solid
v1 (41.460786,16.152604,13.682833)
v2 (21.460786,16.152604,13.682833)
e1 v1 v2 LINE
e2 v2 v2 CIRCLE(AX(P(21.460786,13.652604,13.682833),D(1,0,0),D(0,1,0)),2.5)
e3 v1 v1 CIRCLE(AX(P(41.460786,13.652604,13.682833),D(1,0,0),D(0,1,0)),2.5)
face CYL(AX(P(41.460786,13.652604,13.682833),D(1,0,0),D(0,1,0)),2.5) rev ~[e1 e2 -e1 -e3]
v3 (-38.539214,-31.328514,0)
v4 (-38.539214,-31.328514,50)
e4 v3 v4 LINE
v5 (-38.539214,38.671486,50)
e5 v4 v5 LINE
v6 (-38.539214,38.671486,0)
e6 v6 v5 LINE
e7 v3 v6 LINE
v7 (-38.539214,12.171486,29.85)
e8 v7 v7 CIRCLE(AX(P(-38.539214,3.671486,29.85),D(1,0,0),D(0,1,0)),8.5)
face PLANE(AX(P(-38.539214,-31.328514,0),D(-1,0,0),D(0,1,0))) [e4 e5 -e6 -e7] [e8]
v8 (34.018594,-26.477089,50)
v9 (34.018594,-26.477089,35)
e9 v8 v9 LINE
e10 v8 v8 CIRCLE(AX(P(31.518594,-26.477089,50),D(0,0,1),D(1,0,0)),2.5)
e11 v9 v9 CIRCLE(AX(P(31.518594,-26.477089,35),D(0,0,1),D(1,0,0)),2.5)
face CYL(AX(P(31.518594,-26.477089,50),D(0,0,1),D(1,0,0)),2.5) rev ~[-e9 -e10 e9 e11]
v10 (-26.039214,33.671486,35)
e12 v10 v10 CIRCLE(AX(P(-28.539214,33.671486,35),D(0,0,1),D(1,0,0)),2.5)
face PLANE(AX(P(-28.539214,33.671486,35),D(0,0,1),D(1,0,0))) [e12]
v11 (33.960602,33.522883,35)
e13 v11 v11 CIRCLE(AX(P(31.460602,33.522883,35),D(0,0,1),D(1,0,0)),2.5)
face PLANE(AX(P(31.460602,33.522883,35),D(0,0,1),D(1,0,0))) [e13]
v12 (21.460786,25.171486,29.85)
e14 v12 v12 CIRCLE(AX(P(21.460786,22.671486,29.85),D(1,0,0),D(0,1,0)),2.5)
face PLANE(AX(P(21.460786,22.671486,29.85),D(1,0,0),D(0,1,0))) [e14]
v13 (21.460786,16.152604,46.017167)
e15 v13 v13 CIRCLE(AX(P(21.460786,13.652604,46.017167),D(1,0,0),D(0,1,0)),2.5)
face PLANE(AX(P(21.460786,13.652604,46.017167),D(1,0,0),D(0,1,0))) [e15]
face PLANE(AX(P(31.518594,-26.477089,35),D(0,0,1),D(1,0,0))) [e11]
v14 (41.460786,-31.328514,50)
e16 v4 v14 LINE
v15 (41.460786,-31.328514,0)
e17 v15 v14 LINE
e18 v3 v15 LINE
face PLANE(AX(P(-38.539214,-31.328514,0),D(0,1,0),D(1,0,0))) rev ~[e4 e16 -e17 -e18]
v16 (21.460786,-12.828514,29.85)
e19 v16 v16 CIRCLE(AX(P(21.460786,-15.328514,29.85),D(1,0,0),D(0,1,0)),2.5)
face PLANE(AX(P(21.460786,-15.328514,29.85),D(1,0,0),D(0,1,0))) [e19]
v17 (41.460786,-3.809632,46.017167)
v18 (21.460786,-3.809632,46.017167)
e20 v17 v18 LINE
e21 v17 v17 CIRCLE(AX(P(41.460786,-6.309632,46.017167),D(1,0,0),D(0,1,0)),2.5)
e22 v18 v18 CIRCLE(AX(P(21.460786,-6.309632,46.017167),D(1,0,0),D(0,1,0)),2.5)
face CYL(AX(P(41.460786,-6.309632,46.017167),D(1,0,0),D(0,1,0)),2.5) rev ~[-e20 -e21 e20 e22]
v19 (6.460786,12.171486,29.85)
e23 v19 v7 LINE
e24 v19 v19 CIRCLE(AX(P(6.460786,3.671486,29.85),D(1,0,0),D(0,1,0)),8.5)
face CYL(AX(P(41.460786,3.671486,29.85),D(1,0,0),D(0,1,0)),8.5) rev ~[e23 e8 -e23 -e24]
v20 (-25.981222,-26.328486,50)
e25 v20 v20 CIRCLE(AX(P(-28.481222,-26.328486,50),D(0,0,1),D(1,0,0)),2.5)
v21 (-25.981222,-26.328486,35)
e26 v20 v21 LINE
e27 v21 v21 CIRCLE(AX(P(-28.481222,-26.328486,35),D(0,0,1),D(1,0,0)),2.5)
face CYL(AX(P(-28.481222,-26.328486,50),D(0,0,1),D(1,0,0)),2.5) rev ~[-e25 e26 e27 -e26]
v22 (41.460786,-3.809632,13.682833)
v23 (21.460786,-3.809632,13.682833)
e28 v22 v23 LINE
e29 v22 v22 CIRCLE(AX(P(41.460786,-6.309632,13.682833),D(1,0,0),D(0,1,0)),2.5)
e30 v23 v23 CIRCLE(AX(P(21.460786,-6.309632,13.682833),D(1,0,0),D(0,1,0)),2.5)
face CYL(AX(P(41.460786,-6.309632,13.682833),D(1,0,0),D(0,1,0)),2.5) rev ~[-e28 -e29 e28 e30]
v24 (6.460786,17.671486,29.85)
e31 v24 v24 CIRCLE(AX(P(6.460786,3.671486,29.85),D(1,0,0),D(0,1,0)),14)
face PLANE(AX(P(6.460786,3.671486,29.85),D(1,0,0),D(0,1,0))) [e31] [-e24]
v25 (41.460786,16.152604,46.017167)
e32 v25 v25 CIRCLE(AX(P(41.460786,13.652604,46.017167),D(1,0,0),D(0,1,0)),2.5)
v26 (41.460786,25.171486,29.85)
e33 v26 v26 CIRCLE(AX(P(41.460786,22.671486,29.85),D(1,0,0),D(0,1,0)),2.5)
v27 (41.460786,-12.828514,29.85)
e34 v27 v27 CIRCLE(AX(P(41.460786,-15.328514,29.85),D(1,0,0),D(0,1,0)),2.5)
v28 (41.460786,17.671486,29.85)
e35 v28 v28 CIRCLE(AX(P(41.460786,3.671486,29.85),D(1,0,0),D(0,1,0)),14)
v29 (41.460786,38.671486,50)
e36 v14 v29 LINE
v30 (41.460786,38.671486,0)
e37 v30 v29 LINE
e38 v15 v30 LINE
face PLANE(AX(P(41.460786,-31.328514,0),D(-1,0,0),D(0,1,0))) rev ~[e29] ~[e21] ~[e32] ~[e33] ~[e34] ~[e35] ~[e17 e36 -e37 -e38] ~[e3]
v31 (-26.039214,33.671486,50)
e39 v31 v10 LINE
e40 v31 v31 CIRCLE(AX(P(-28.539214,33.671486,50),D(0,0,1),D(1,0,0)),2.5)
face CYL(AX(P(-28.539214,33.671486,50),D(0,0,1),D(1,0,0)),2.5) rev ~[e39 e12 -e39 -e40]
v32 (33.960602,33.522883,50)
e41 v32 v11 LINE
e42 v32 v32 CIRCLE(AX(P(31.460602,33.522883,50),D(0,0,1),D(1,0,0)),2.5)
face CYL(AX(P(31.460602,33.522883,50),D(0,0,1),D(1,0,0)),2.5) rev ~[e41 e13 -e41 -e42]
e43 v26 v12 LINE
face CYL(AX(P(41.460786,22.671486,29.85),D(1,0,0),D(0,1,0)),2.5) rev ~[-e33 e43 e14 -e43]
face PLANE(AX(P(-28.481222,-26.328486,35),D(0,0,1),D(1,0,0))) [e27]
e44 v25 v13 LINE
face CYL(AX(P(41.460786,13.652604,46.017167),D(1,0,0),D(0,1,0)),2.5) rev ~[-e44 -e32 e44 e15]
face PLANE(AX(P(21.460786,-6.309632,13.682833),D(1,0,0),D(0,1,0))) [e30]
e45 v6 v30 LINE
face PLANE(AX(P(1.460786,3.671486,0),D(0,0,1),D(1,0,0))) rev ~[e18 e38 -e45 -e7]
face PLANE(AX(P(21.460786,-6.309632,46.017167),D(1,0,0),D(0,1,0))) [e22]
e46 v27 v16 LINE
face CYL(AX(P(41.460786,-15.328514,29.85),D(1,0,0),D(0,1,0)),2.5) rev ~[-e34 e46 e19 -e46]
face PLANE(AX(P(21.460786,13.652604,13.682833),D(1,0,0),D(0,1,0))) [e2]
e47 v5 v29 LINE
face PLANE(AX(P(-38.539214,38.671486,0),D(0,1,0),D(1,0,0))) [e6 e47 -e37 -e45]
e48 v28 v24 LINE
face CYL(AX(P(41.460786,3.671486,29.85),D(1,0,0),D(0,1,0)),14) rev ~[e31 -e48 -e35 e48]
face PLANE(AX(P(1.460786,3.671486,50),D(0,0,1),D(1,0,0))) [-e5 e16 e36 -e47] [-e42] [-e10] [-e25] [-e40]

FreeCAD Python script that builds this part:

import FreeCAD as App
import Part
import Sketcher
Q = App.Units.Quantity

doc = App.newDocument("Part")
params = doc.addObject("Spreadsheet::Sheet", "Params")
for row, (alias, value) in enumerate([
    ("sketch1_width", "80 mm"),
    ("sketch1_height", "70 mm"),
    ("pad1_length", "50 mm"),
    ("sketch2_diameter", "5 mm"),
    ("pocket1_length", "15 mm"),
    ("sketch3_diameter", "17 mm"),
    ("pocket2_length", "92.7 mm"),
    ("sketch4_diameter", "28 mm"),
    ("sketch4_diameter2", "17 mm"),
    ("pocket3_length", "35 mm"),
    ("sketch5_diameter", "5 mm"),
    ("pocket4_length", "20 mm"),
], start=1):
    params.set(f"A{row}", alias)
    params.set(f"B{row}", "=" + value)
    params.setAlias(f"B{row}", alias)

body = doc.addObject("PartDesign::Body", "Body")

sketch1 = doc.addObject("Sketcher::SketchObject", "Sketch")
body.addObject(sketch1)
sketch1.AttachmentSupport = (doc.XY_Plane, [""])
sketch1.MapMode = "FlatFace"
sketch1.addGeometry(Part.LineSegment(App.Vector(-39, 39, 0), App.Vector(-39, -31, 0)), False)
sketch1.addGeometry(Part.LineSegment(App.Vector(-39, -31, 0), App.Vector(41, -31, 0)), False)
sketch1.addGeometry(Part.LineSegment(App.Vector(41, -31, 0), App.Vector(41, 39, 0)), False)
sketch1.addGeometry(Part.LineSegment(App.Vector(41, 39, 0), App.Vector(-39, 39, 0)), False)
sketch1.addConstraint(Sketcher.Constraint("Coincident", 0, 2, 1, 1))
sketch1.addConstraint(Sketcher.Constraint("Coincident", 1, 2, 2, 1))
sketch1.addConstraint(Sketcher.Constraint("Coincident", 2, 2, 3, 1))
sketch1.addConstraint(Sketcher.Constraint("Coincident", 3, 2, 0, 1))
sketch1.addConstraint(Sketcher.Constraint("Vertical", 0))
sketch1.addConstraint(Sketcher.Constraint("Horizontal", 1))
sketch1.addConstraint(Sketcher.Constraint("Vertical", 2))
sketch1.addConstraint(Sketcher.Constraint("Horizontal", 3))
sketch1.addConstraint(Sketcher.Constraint("DistanceX", 1, 1, 1, 2, Q("80 mm")))
sketch1.addConstraint(Sketcher.Constraint("DistanceY", 0, 2, 0, 1, Q("70 mm")))
sketch1.addConstraint(Sketcher.Constraint("DistanceX", 0, 2, -1, 1, Q("38.539214 mm")))
sketch1.addConstraint(Sketcher.Constraint("DistanceY", 0, 2, -1, 1, Q("31.328514 mm")))
sketch1.setExpression("Constraints[8]", "Params.sketch1_width")
sketch1.setExpression("Constraints[9]", "Params.sketch1_height")
pad1 = doc.addObject("PartDesign::Pad", "Pad")
body.addObject(pad1)
pad1.Profile = sketch1
pad1.setExpression("Length", "Params.pad1_length")

sketch2 = doc.addObject("Sketcher::SketchObject", "Sketch001")
body.addObject(sketch2)
sketch2.AttachmentSupport = (doc.XY_Plane, [""])
sketch2.MapMode = "FlatFace"
sketch2.AttachmentOffset = App.Placement(App.Vector(0, 0, 50), App.Rotation())
sketch2.addGeometry(Part.Circle(App.Vector(-28.5, 33.7, 0), App.Vector(0, 0, 1), 2.5), False)
sketch2.addGeometry(Part.Circle(App.Vector(-28.5, -26.3, 0), App.Vector(0, 0, 1), 2.5), False)
sketch2.addGeometry(Part.Circle(App.Vector(31.5, 33.5, 0), App.Vector(0, 0, 1), 2.5), False)
sketch2.addGeometry(Part.Circle(App.Vector(31.5, -26.5, 0), App.Vector(0, 0, 1), 2.5), False)
sketch2.addConstraint(Sketcher.Constraint("Equal", 0, 1))
sketch2.addConstraint(Sketcher.Constraint("Equal", 1, 2))
sketch2.addConstraint(Sketcher.Constraint("Equal", 2, 3))
sketch2.addConstraint(Sketcher.Constraint("Diameter", 0, Q("5 mm")))
sketch2.addConstraint(Sketcher.Constraint("DistanceX", 1, 3, -1, 1, Q("28.481222 mm")))
sketch2.addConstraint(Sketcher.Constraint("DistanceY", 3, 3, -1, 1, Q("26.477089 mm")))
sketch2.addConstraint(Sketcher.Constraint("DistanceY", 1, 3, 2, 3, Q("59.851369 mm")))
sketch2.addConstraint(Sketcher.Constraint("DistanceX", 2, 3, 3, 3, Q("0.057992 mm")))
sketch2.addConstraint(Sketcher.Constraint("DistanceX", 0, 3, -1, 1, Q("28.539214 mm")))
sketch2.addConstraint(Sketcher.Constraint("DistanceY", -1, 1, 0, 3, Q("33.671486 mm")))
sketch2.addConstraint(Sketcher.Constraint("DistanceY", 1, 3, -1, 1, Q("26.328486 mm")))
sketch2.addConstraint(Sketcher.Constraint("DistanceX", -1, 1, 2, 3, Q("31.460602 mm")))
sketch2.setExpression("Constraints[3]", "Params.sketch2_diameter")
pocket1 = doc.addObject("PartDesign::Pocket", "Pocket")
body.addObject(pocket1)
pocket1.Profile = sketch2
pocket1.setExpression("Length", "Params.pocket1_length")

sketch3 = doc.addObject("Sketcher::SketchObject", "Sketch002")
body.addObject(sketch3)
sketch3.AttachmentSupport = (doc.YZ_Plane, [""])
sketch3.MapMode = "FlatFace"
sketch3.AttachmentOffset = App.Placement(App.Vector(0, 0, 41.460786), App.Rotation())
sketch3.addGeometry(Part.Circle(App.Vector(4, 30, 0), App.Vector(0, 0, 1), 8), False)
sketch3.addConstraint(Sketcher.Constraint("Diameter", 0, Q("17 mm")))
sketch3.addConstraint(Sketcher.Constraint("DistanceY", -1, 1, 0, 3, Q("29.85 mm")))
sketch3.addConstraint(Sketcher.Constraint("DistanceX", -1, 1, 0, 3, Q("3.671486 mm")))
sketch3.setExpression("Constraints[0]", "Params.sketch3_diameter")
pocket2 = doc.addObject("PartDesign::Pocket", "Pocket001")
body.addObject(pocket2)
pocket2.Profile = sketch3
pocket2.setExpression("Length", "Params.pocket2_length")

sketch4 = doc.addObject("Sketcher::SketchObject", "Sketch003")
body.addObject(sketch4)
sketch4.AttachmentSupport = (doc.YZ_Plane, [""])
sketch4.MapMode = "FlatFace"
sketch4.AttachmentOffset = App.Placement(App.Vector(0, 0, 41.460786), App.Rotation())
sketch4.addGeometry(Part.Circle(App.Vector(4, 30, 0), App.Vector(0, 0, 1), 14), False)
sketch4.addGeometry(Part.Circle(App.Vector(4, 30, 0), App.Vector(0, 0, 1), 8), False)
sketch4.addConstraint(Sketcher.Constraint("Coincident", 1, 3, 0, 3))
sketch4.addConstraint(Sketcher.Constraint("Diameter", 0, Q("28 mm")))
sketch4.addConstraint(Sketcher.Constraint("Diameter", 1, Q("17 mm")))
sketch4.addConstraint(Sketcher.Constraint("DistanceY", -1, 1, 0, 3, Q("29.85 mm")))
sketch4.addConstraint(Sketcher.Constraint("DistanceX", -1, 1, 0, 3, Q("3.671486 mm")))
sketch4.setExpression("Constraints[1]", "Params.sketch4_diameter")
sketch4.setExpression("Constraints[2]", "Params.sketch4_diameter2")
pocket3 = doc.addObject("PartDesign::Pocket", "Pocket002")
body.addObject(pocket3)
pocket3.Profile = sketch4
pocket3.setExpression("Length", "Params.pocket3_length")

sketch5 = doc.addObject("Sketcher::SketchObject", "Sketch004")
body.addObject(sketch5)
sketch5.AttachmentSupport = (doc.YZ_Plane, [""])
sketch5.MapMode = "FlatFace"
sketch5.AttachmentOffset = App.Placement(App.Vector(0, 0, 41.460786), App.Rotation())
sketch5.addGeometry(Part.Circle(App.Vector(-6.3, 46, 0), App.Vector(0, 0, 1), 2.5), False)
sketch5.addGeometry(Part.Circle(App.Vector(-15.3, 29.9, 0), App.Vector(0, 0, 1), 2.5), False)
sketch5.addGeometry(Part.Circle(App.Vector(-6.3, 13.7, 0), App.Vector(0, 0, 1), 2.5), False)
sketch5.addGeometry(Part.Circle(App.Vector(13.7, 13.7, 0), App.Vector(0, 0, 1), 2.5), False)
sketch5.addGeometry(Part.Circle(App.Vector(22.7, 29.9, 0), App.Vector(0, 0, 1), 2.5), False)
sketch5.addGeometry(Part.Circle(App.Vector(13.7, 46, 0), App.Vector(0, 0, 1), 2.5), False)
sketch5.addConstraint(Sketcher.Constraint("Equal", 0, 1))
sketch5.addConstraint(Sketcher.Constraint("Equal", 1, 2))
sketch5.addConstraint(Sketcher.Constraint("Equal", 2, 3))
sketch5.addConstraint(Sketcher.Constraint("Equal", 3, 4))
sketch5.addConstraint(Sketcher.Constraint("Equal", 4, 5))
sketch5.addConstraint(Sketcher.Constraint("Horizontal", 2, 3, 3, 3))
sketch5.addConstraint(Sketcher.Constraint("Horizontal", 1, 3, 4, 3))
sketch5.addConstraint(Sketcher.Constraint("Horizontal", 0, 3, 5, 3))
sketch5.addConstraint(Sketcher.Constraint("Vertical", 0, 3, 2, 3))
sketch5.addConstraint(Sketcher.Constraint("Vertical", 3, 3, 5, 3))
sketch5.addConstraint(Sketcher.Constraint("Diameter", 0, Q("5 mm")))
sketch5.addConstraint(Sketcher.Constraint("DistanceX", 1, 3, 4, 3, Q("38 mm")))
sketch5.addConstraint(Sketcher.Constraint("DistanceY", -1, 1, 1, 3, Q("29.85 mm")))
sketch5.addConstraint(Sketcher.Constraint("DistanceX", 0, 3, -1, 1, Q("6.309632 mm")))
sketch5.addConstraint(Sketcher.Constraint("DistanceX", 1, 3, 3, 3, Q("28.981118 mm")))
sketch5.addConstraint(Sketcher.Constraint("DistanceX", 0, 3, 4, 3, Q("28.981118 mm")))
sketch5.addConstraint(Sketcher.Constraint("DistanceY", -1, 1, 0, 3, Q("46.017167 mm")))
sketch5.addConstraint(Sketcher.Constraint("DistanceY", -1, 1, 2, 3, Q("13.682833 mm")))
sketch5.setExpression("Constraints[10]", "Params.sketch5_diameter")
pocket4 = doc.addObject("PartDesign::Pocket", "Pocket003")
body.addObject(pocket4)
pocket4.Profile = sketch5
pocket4.setExpression("Length", "Params.pocket4_length")

doc.recompute()
